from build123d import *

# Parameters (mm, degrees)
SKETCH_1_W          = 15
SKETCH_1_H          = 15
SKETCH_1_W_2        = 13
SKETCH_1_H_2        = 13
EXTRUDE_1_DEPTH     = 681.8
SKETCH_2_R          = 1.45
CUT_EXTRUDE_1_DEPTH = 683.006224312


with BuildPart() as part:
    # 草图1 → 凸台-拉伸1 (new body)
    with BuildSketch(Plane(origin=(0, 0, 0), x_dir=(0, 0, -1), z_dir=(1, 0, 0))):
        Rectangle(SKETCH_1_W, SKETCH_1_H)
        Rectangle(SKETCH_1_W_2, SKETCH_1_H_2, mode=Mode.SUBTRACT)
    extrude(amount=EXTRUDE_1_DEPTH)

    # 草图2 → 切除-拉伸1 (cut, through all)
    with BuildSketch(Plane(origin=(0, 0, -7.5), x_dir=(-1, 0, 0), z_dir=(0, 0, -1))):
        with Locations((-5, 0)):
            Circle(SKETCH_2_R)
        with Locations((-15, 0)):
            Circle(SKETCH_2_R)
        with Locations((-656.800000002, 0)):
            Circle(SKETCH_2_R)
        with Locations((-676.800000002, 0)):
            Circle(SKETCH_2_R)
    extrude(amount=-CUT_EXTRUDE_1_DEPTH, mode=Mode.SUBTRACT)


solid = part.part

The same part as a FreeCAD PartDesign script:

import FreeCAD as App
import Part
import Sketcher
from FreeCAD import Vector
Q = App.Units.Quantity

doc = App.newDocument("Part")
body = doc.addObject("PartDesign::Body", "Body")

sketch1 = body.newObject("Sketcher::SketchObject", "Sketch")
sketch1.AttachmentSupport = (doc.getObject("YZ_Plane"), [""])
sketch1.MapMode = "FlatFace"
sketch1.addGeometry(Part.LineSegment(Vector(8, 8, 0), Vector(-8, 8, 0)), False)
sketch1.addGeometry(Part.LineSegment(Vector(-8, 8, 0), Vector(-8, -8, 0)), False)
sketch1.addGeometry(Part.LineSegment(Vector(-8, -8, 0), Vector(8, -8, 0)), False)
sketch1.addGeometry(Part.LineSegment(Vector(8, -8, 0), Vector(8, 8, 0)), False)
sketch1.addGeometry(Part.LineSegment(Vector(-6, -6, 0), Vector(-6, 6, 0)), False)
sketch1.addGeometry(Part.LineSegment(Vector(-6, 6, 0), Vector(6, 6, 0)), False)
sketch1.addGeometry(Part.LineSegment(Vector(6, 6, 0), Vector(6, -6, 0)), False)
sketch1.addGeometry(Part.LineSegment(Vector(6, -6, 0), Vector(-6, -6, 0)), False)
sketch1.addConstraint(Sketcher.Constraint("Coincident", 0, 2, 1, 1))
sketch1.addConstraint(Sketcher.Constraint("Coincident", 1, 2, 2, 1))
sketch1.addConstraint(Sketcher.Constraint("Coincident", 2, 2, 3, 1))
sketch1.addConstraint(Sketcher.Constraint("Coincident", 3, 2, 0, 1))
sketch1.addConstraint(Sketcher.Constraint("Coincident", 4, 2, 5, 1))
sketch1.addConstraint(Sketcher.Constraint("Coincident", 5, 2, 6, 1))
sketch1.addConstraint(Sketcher.Constraint("Coincident", 6, 2, 7, 1))
sketch1.addConstraint(Sketcher.Constraint("Coincident", 7, 2, 4, 1))
sketch1.addConstraint(Sketcher.Constraint("Horizontal", 0))
sketch1.addConstraint(Sketcher.Constraint("Vertical", 1))
sketch1.addConstraint(Sketcher.Constraint("Horizontal", 2))
sketch1.addConstraint(Sketcher.Constraint("Vertical", 3))
sketch1.addConstraint(Sketcher.Constraint("Vertical", 4))
sketch1.addConstraint(Sketcher.Constraint("Horizontal", 5))
sketch1.addConstraint(Sketcher.Constraint("Vertical", 6))
sketch1.addConstraint(Sketcher.Constraint("Horizontal", 7))
sketch1.addConstraint(Sketcher.Constraint("Symmetric", 0, 2, 2, 2, -1, 1))
sketch1.addConstraint(Sketcher.Constraint("Symmetric", 4, 2, 6, 2, -1, 1))
sketch1.addConstraint(Sketcher.Constraint("Equal", 2, 1))
sketch1.addConstraint(Sketcher.Constraint("Equal", 7, 4))
sketch1.addConstraint(Sketcher.Constraint("DistanceX", 0, 2, 0, 1, Q("15 mm")))
sketch1.addConstraint(Sketcher.Constraint("DistanceX", 5, 1, 5, 2, Q("13 mm")))
pad1 = body.newObject("PartDesign::Pad", "Pad")
pad1.Profile = sketch1
pad1.Length = 681.8

sketch2 = body.newObject("Sketcher::SketchObject", "Sketch001")
sketch2.AttachmentSupport = (doc.getObject("XY_Plane"), [""])
sketch2.MapMode = "FlatFace"
sketch2.AttachmentOffset = App.Placement(Vector(0, 0, -7.5), App.Rotation())
sketch2.addGeometry(Part.Circle(Vector(5, 0, 0), Vector(0, 0, 1), 1.4), False)
sketch2.addGeometry(Part.Circle(Vector(15, 0, 0), Vector(0, 0, 1), 1.4), False)
sketch2.addGeometry(Part.Circle(Vector(656.8, 0, 0), Vector(0, 0, 1), 1.4), False)
sketch2.addGeometry(Part.Circle(Vector(676.8, 0, 0), Vector(0, 0, 1), 1.4), False)
sketch2.addConstraint(Sketcher.Constraint("Equal", 0, 1))
sketch2.addConstraint(Sketcher.Constraint("Equal", 1, 2))
sketch2.addConstraint(Sketcher.Constraint("Equal", 2, 3))
sketch2.addConstraint(Sketcher.Constraint("PointOnObject", 0, 3, -1))
sketch2.addConstraint(Sketcher.Constraint("PointOnObject", 1, 3, -1))
sketch2.addConstraint(Sketcher.Constraint("PointOnObject", 2, 3, -1))
sketch2.addConstraint(Sketcher.Constraint("PointOnObject", 3, 3, -1))
sketch2.addConstraint(Sketcher.Constraint("Diameter", 0, Q("2.9 mm")))
sketch2.addConstraint(Sketcher.Constraint("DistanceX", -1, 1, 0, 3, Q("5 mm")))
sketch2.addConstraint(Sketcher.Constraint("DistanceX", -1, 1, 1, 3, Q("15 mm")))
sketch2.addConstraint(Sketcher.Constraint("DistanceX", 2, 3, 3, 3, Q("20 mm")))
sketch2.addConstraint(Sketcher.Constraint("DistanceX", -1, 1, 2, 3, Q("656.8 mm")))
pocket1 = body.newObject("PartDesign::Pocket", "Pocket")
pocket1.Profile = sketch2
pocket1.Type = "ThroughAll"
pocket1.Reversed = True

doc.recompute()
